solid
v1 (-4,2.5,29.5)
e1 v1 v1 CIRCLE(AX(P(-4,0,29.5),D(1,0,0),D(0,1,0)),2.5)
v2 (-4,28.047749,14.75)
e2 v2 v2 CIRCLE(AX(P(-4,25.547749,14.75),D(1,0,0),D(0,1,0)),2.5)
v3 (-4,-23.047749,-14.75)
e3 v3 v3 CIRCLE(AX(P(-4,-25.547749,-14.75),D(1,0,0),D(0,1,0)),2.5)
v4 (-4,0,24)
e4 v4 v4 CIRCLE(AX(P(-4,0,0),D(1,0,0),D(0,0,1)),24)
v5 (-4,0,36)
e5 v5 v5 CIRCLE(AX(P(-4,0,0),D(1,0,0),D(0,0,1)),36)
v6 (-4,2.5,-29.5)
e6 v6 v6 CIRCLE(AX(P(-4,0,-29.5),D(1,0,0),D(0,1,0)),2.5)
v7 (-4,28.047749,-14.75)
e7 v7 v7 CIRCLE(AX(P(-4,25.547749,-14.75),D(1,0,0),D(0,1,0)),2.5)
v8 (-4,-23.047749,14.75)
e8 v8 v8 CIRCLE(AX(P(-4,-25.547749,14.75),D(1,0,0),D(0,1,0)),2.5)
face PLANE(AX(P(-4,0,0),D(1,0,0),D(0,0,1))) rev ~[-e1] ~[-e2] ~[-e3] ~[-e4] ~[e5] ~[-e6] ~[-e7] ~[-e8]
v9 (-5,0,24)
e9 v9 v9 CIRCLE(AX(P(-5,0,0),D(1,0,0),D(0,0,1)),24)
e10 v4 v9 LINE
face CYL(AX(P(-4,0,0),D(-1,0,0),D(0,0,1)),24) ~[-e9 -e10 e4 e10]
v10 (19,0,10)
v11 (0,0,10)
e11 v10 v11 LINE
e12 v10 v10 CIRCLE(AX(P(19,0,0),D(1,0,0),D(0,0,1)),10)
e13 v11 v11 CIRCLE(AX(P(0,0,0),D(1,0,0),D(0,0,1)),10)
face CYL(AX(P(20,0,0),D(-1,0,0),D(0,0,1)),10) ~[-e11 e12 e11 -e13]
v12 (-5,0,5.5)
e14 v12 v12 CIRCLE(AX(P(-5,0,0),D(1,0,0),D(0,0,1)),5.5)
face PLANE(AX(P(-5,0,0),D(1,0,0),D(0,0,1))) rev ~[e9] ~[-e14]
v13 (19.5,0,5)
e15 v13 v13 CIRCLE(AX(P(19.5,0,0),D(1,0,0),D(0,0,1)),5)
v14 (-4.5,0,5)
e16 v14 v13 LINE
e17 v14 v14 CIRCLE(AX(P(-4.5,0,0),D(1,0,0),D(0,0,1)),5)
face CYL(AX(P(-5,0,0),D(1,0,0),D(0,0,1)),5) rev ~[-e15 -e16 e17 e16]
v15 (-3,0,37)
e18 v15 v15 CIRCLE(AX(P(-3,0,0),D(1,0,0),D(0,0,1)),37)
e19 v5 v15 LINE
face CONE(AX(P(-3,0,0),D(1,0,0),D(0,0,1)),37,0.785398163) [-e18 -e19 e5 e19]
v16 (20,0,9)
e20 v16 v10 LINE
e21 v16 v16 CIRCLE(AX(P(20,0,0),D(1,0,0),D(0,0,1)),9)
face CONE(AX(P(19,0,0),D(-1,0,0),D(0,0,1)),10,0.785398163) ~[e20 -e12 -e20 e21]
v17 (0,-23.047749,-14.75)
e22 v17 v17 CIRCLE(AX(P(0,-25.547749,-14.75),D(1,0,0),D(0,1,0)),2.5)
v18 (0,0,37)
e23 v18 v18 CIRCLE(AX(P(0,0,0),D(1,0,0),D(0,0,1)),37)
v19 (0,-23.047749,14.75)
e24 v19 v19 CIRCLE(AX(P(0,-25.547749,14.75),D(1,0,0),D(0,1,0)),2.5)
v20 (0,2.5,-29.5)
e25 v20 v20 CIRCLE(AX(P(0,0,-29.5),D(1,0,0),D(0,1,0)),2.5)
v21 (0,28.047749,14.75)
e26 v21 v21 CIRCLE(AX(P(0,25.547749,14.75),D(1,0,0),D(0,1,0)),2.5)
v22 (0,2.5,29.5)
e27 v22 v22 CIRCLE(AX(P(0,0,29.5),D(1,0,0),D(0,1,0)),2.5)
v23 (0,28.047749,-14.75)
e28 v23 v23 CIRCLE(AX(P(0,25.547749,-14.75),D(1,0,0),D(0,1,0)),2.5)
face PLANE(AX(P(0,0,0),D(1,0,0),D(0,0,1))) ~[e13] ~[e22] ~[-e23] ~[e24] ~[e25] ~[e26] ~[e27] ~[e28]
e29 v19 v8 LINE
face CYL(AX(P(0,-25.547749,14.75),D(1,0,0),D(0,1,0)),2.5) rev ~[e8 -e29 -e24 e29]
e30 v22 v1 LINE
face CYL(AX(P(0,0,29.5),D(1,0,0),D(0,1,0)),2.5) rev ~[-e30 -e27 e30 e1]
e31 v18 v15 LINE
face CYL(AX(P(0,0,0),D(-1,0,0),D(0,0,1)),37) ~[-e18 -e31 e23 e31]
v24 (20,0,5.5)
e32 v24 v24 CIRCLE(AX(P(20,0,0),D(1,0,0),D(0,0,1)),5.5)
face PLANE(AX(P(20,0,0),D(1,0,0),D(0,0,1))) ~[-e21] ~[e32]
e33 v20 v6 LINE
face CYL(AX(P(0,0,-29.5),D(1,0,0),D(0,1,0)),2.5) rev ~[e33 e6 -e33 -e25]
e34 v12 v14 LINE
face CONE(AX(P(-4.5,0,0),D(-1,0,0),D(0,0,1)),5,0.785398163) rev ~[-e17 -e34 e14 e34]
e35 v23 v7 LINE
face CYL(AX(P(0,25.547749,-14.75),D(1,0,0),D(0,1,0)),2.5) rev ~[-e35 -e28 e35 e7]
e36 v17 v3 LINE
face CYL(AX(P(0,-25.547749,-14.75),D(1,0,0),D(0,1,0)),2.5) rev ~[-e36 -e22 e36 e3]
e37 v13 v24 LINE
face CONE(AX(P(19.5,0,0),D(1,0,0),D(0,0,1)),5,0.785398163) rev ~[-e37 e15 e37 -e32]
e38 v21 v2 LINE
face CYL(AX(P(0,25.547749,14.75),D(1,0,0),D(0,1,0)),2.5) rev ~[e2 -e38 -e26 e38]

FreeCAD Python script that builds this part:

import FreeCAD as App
import Part
import Sketcher
Q = App.Units.Quantity


def edges_at(feature, points):
    """Names of the edges that pass closest to the given points."""
    edges = feature.Shape.Edges
    near = lambda p: min(range(len(edges)), key=lambda i: edges[i].distToShape(Part.Vertex(*p))[0])
    return sorted({f"Edge{near(p) + 1}" for p in points})

doc = App.newDocument("Part")
body = doc.addObject("PartDesign::Body", "Body")

sketch1 = doc.addObject("Sketcher::SketchObject", "Sketch")
body.addObject(sketch1)
sketch1.AttachmentSupport = (doc.XZ_Plane, [""])
sketch1.MapMode = "FlatFace"
sketch1.addGeometry([
    Part.LineSegment(App.Vector(-5, 24, 0), App.Vector(-5, 5, 0)),
    Part.LineSegment(App.Vector(-5, 5, 0), App.Vector(20, 5, 0)),
    Part.LineSegment(App.Vector(20, 5, 0), App.Vector(20, 10, 0)),
    Part.LineSegment(App.Vector(20, 10, 0), App.Vector(0, 10, 0)),
    Part.LineSegment(App.Vector(0, 10, 0), App.Vector(0, 37, 0)),
    Part.LineSegment(App.Vector(0, 37, 0), App.Vector(-4, 37, 0)),
    Part.LineSegment(App.Vector(-4, 37, 0), App.Vector(-4, 24, 0)),
    Part.LineSegment(App.Vector(-4, 24, 0), App.Vector(-5, 24, 0)),
], False)
sketch1.addConstraint([
    Sketcher.Constraint("Coincident", 0, 2, 1, 1),
    Sketcher.Constraint("Coincident", 1, 2, 2, 1),
    Sketcher.Constraint("Coincident", 2, 2, 3, 1),
    Sketcher.Constraint("Coincident", 3, 2, 4, 1),
    Sketcher.Constraint("Coincident", 4, 2, 5, 1),
    Sketcher.Constraint("Coincident", 5, 2, 6, 1),
    Sketcher.Constraint("Coincident", 6, 2, 7, 1),
    Sketcher.Constraint("Coincident", 7, 2, 0, 1),
    Sketcher.Constraint("Vertical", 0),
    Sketcher.Constraint("Horizontal", 1),
    Sketcher.Constraint("Vertical", 2),
    Sketcher.Constraint("Horizontal", 3),
    Sketcher.Constraint("Vertical", 4),
    Sketcher.Constraint("Horizontal", 5),
    Sketcher.Constraint("Vertical", 6),
    Sketcher.Constraint("Horizontal", 7),
    Sketcher.Constraint("PointOnObject", 3, 2, -2),
    Sketcher.Constraint("DistanceX", 1, 1, 1, 2, Q("25 mm")),
    Sketcher.Constraint("DistanceX", 3, 2, 3, 1, Q("20 mm")),
    Sketcher.Constraint("DistanceX", 5, 2, 5, 1, Q("4 mm")),
    Sketcher.Constraint("DistanceY", 0, 2, 0, 1, Q("19 mm")),
    Sketcher.Constraint("DistanceY", 2, 1, 2, 2, Q("5 mm")),
    Sketcher.Constraint("DistanceY", 4, 1, 4, 2, Q("27 mm")),
    Sketcher.Constraint("DistanceY", -1, 1, 0, 2, Q("5 mm")),
])
revolution = doc.addObject("PartDesign::Revolution", "Revolution")
body.addObject(revolution)
revolution.Profile = sketch1
revolution.ReferenceAxis = (sketch1, ["H_Axis"])
revolution.Angle = 360

sketch2 = doc.addObject("Sketcher::SketchObject", "Sketch001")
body.addObject(sketch2)
sketch2.AttachmentSupport = (doc.YZ_Plane, [""])
sketch2.MapMode = "FlatFace"
sketch2.addGeometry([
    Part.Circle(App.Vector(0, 29.5, 0), App.Vector(0, 0, 1), 2.5),
    Part.Circle(App.Vector(-25.5, 14.8, 0), App.Vector(0, 0, 1), 2.5),
    Part.Circle(App.Vector(-25.5, -14.8, 0), App.Vector(0, 0, 1), 2.5),
    Part.Circle(App.Vector(0, -29.5, 0), App.Vector(0, 0, 1), 2.5),
    Part.Circle(App.Vector(25.5, -14.8, 0), App.Vector(0, 0, 1), 2.5),
    Part.Circle(App.Vector(25.5, 14.8, 0), App.Vector(0, 0, 1), 2.5),
], False)
sketch2.addConstraint([
    Sketcher.Constraint("Equal", 0, 1),
    Sketcher.Constraint("Equal", 1, 2),
    Sketcher.Constraint("Equal", 2, 3),
    Sketcher.Constraint("Equal", 3, 4),
    Sketcher.Constraint("Equal", 4, 5),
    Sketcher.Constraint("Symmetric", 0, 3, 3, 3, -1, 1),
    Sketcher.Constraint("Symmetric", 1, 3, 4, 3, -1, 1),
    Sketcher.Constraint("Symmetric", 2, 3, 5, 3, -1, 1),
    Sketcher.Constraint("Symmetric", 2, 3, 4, 3, -2),
    Sketcher.Constraint("PointOnObject", 0, 3, -2),
    Sketcher.Constraint("Diameter", 0, Q("5 mm")),
    Sketcher.Constraint("DistanceY", 3, 3, 0, 3, Q("59 mm")),
    Sketcher.Constraint("DistanceY", 2, 3, 1, 3, Q("29.5 mm")),
    Sketcher.Constraint("DistanceX", 1, 3, -1, 1, Q("25.547749 mm")),
])
pocket1 = doc.addObject("PartDesign::Pocket", "Pocket")
body.addObject(pocket1)
pocket1.Profile = sketch2
pocket1.Type = "ThroughAll"
doc.recompute()

chamfer = doc.addObject("PartDesign::Chamfer", "Chamfer")
body.addObject(chamfer)
chamfer.Base = (pocket1, edges_at(pocket1, [(20, 0, -10), (-4, 0, -37)]))
chamfer.Size = 1
doc.recompute()

chamfer2 = doc.addObject("PartDesign::Chamfer", "Chamfer001")
body.addObject(chamfer2)
chamfer2.Base = (chamfer, edges_at(chamfer, [(-5, 0, -5), (20, 0, -5)]))
chamfer2.Size = 0.5

doc.recompute()
